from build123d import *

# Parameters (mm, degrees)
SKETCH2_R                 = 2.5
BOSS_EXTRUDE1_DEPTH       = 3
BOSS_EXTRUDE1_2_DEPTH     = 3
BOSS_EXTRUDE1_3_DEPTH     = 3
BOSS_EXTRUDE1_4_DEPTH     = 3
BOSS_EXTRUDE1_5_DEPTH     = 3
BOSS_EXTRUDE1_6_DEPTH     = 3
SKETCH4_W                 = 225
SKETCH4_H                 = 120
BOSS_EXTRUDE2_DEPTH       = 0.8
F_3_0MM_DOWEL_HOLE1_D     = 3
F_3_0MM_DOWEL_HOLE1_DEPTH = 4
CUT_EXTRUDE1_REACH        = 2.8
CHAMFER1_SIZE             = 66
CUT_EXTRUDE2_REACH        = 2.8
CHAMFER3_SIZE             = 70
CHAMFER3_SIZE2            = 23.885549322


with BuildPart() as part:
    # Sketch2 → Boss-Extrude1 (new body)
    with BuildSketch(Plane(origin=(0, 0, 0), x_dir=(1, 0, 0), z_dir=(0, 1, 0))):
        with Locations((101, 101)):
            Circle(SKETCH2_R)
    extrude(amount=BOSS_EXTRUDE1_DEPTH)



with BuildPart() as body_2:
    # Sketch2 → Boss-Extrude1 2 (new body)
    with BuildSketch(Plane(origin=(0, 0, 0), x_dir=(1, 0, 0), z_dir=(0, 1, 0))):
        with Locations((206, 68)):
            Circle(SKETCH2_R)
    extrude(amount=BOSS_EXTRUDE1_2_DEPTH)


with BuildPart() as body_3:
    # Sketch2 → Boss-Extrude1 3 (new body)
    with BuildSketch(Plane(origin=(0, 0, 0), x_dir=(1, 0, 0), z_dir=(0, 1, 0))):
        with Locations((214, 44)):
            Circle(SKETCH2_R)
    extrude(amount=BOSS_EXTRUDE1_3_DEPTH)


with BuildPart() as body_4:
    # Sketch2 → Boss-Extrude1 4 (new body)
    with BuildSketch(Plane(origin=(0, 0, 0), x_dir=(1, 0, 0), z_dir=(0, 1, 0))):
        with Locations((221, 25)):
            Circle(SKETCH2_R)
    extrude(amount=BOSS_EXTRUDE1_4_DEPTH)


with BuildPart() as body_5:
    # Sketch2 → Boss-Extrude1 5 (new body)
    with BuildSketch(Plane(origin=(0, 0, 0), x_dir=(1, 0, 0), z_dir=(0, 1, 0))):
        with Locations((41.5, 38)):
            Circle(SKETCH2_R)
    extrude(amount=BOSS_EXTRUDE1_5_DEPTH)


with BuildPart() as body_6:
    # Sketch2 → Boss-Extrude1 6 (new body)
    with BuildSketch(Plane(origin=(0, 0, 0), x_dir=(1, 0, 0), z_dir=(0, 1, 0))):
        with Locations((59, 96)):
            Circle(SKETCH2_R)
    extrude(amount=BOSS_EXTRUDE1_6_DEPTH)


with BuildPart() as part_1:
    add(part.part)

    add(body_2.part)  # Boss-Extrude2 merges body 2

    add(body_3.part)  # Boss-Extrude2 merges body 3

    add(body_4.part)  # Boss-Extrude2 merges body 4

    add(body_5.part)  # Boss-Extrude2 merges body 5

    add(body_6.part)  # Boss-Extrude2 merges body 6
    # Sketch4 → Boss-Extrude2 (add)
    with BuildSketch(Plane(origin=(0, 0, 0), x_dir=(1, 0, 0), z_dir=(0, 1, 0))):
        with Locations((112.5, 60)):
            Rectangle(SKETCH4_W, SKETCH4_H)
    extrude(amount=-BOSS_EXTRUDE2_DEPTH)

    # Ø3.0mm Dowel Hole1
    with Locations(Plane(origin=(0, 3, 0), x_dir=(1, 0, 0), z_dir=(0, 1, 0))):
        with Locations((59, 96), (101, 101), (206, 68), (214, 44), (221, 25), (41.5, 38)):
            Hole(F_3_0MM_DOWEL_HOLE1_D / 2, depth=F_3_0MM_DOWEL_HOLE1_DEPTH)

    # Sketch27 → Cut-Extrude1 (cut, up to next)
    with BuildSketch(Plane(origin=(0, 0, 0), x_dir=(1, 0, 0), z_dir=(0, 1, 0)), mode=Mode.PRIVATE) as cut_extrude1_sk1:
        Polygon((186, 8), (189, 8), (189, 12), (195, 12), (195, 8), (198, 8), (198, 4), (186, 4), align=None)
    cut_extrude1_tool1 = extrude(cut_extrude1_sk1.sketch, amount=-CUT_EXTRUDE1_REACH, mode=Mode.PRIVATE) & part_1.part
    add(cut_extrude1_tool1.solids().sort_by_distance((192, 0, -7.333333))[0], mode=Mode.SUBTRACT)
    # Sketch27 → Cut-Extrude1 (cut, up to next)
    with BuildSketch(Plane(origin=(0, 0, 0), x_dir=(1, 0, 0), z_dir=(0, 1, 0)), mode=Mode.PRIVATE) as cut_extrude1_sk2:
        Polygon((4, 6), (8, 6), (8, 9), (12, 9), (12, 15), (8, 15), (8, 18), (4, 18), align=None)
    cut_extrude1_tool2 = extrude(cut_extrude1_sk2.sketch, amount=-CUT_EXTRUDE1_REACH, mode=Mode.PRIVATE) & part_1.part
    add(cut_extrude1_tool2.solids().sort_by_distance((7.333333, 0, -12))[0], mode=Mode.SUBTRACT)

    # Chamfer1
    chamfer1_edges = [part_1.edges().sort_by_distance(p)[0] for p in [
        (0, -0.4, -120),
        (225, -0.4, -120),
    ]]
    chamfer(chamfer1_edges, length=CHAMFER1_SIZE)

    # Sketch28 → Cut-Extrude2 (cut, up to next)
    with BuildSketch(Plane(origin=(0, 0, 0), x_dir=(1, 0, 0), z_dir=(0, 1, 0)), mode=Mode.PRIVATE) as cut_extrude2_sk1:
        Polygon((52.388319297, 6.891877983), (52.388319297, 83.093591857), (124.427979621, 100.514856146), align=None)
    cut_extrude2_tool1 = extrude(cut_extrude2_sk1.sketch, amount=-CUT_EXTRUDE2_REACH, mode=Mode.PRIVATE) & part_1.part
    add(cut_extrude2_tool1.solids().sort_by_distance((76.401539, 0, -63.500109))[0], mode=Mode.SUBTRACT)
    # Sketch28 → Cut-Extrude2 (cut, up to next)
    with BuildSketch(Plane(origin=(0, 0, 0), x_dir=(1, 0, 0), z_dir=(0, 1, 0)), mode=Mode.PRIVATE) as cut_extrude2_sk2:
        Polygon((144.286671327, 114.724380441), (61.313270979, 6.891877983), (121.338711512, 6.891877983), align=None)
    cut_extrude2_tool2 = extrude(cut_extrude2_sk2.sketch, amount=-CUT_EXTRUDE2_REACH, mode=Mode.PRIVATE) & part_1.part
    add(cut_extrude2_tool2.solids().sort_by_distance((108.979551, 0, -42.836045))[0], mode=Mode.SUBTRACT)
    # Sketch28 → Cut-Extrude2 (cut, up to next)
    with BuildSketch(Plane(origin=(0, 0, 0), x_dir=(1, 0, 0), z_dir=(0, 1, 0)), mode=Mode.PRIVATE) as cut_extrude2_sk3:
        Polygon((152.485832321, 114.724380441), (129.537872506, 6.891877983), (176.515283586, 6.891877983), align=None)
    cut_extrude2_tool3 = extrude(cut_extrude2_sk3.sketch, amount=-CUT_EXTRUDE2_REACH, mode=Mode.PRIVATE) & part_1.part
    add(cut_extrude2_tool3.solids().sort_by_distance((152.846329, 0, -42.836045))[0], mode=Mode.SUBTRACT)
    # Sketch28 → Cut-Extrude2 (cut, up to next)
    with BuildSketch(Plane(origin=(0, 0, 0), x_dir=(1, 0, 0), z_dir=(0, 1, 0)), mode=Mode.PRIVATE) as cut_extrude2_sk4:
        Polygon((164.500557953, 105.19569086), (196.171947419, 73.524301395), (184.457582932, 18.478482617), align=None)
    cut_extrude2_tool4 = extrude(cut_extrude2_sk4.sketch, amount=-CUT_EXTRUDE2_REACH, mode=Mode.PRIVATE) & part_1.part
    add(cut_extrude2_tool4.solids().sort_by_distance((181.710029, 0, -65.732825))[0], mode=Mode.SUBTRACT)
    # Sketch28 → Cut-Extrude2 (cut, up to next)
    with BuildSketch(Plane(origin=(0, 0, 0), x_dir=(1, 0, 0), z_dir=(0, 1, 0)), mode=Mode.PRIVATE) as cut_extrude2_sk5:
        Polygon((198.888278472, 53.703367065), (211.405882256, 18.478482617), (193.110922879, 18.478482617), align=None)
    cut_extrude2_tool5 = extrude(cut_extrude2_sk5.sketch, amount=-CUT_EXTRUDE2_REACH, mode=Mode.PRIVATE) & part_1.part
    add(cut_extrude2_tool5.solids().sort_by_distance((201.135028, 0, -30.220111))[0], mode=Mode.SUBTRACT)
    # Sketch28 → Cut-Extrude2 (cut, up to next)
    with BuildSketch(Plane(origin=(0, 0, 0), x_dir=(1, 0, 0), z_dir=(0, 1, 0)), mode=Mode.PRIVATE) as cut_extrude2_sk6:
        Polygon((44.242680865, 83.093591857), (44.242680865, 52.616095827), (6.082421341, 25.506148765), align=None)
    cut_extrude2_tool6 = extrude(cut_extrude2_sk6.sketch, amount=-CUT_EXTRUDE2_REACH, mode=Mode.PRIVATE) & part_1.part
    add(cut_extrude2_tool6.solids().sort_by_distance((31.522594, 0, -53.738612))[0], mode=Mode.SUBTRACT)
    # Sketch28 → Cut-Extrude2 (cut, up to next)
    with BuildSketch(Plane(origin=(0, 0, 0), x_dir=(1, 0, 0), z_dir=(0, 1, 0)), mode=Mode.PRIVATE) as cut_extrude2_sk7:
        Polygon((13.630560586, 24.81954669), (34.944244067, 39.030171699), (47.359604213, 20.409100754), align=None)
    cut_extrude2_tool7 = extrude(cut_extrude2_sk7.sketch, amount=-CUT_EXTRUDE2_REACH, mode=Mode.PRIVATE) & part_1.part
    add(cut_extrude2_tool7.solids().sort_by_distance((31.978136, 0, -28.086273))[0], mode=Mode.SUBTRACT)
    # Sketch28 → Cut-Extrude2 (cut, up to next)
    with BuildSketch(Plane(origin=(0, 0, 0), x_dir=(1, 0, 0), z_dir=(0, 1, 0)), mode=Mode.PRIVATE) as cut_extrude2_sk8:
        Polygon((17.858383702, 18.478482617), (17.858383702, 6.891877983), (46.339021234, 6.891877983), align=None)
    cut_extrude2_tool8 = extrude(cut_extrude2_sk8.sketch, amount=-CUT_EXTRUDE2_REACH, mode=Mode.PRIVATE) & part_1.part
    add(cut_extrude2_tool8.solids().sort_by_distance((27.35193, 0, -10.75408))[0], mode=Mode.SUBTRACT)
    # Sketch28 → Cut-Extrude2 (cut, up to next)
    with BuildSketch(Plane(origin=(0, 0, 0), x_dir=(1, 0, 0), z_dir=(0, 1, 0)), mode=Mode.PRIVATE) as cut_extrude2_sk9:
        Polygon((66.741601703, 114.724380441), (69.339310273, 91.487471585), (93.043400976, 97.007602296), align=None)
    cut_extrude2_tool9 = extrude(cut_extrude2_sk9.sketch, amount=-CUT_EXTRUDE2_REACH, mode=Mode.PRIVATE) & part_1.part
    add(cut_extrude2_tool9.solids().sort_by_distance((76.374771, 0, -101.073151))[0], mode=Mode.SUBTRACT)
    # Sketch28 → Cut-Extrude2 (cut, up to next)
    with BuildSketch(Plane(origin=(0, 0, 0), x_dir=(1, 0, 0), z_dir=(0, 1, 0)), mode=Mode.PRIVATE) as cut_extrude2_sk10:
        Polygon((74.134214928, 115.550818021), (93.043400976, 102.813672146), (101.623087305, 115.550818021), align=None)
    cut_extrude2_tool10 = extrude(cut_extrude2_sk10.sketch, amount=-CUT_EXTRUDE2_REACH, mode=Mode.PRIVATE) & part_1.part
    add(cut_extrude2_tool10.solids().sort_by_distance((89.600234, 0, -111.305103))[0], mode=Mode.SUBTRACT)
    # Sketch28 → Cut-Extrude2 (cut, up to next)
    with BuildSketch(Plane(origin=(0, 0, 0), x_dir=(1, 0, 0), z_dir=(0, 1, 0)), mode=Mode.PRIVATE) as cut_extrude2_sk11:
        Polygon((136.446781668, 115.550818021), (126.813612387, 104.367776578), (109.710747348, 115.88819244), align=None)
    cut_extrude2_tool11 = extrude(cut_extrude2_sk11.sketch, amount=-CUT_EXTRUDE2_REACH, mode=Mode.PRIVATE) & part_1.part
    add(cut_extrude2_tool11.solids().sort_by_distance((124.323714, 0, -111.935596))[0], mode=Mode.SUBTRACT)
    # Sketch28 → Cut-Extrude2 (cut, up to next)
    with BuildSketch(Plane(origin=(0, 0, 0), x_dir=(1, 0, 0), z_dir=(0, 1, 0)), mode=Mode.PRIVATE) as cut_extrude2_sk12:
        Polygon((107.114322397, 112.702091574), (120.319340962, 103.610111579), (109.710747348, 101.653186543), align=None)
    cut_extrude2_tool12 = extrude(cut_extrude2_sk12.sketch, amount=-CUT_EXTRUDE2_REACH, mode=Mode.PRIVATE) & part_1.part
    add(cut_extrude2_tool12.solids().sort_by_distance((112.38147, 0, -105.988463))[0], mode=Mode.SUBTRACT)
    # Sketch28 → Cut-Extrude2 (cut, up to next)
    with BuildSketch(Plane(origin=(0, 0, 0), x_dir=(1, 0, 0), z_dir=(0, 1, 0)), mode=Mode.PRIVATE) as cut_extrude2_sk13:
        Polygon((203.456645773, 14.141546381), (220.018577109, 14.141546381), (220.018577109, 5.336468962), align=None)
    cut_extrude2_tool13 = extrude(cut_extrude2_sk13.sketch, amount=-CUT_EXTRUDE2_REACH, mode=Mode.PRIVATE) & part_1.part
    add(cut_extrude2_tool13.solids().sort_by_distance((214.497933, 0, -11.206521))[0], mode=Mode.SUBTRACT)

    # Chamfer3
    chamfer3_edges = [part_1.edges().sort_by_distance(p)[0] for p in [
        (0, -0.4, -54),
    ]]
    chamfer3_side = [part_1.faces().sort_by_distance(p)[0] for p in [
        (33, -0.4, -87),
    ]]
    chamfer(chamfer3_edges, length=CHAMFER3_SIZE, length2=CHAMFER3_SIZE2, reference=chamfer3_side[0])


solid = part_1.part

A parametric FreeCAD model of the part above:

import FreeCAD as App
import Part
import Sketcher
from FreeCAD import Vector
Q = App.Units.Quantity


def edges_at(feature, points):
    """Names of the edges that pass closest to the given points."""
    edges = feature.Shape.Edges
    near = lambda p: min(range(len(edges)), key=lambda i: edges[i].distToShape(Part.Vertex(*p))[0])
    return sorted({f"Edge{near(p) + 1}" for p in points})

doc = App.newDocument("Part")
body = doc.addObject("PartDesign::Body", "Body")

# Sketch on XZ plane
sketch1 = body.newObject("Sketcher::SketchObject", "Sketch")
sketch1.AttachmentSupport = (doc.getObject("XZ_Plane"), [""])
sketch1.MapMode = "FlatFace"
sketch1.addGeometry(Part.Circle(Vector(101, -101, 0), Vector(0, 0, 1), 2.5), False)
sketch1.addConstraint(Sketcher.Constraint("Diameter", 0, 5.0))
sketch1.addConstraint(Sketcher.Constraint("DistanceX", -1, 1, 0, 3, 101.0))
sketch1.addConstraint(Sketcher.Constraint("DistanceY", 0, 3, -1, 1, 101.0))
pad1 = body.newObject("PartDesign::Pad", "Pad")
pad1.Profile = sketch1
pad1.Length = 3
pad1.Reversed = True
body2 = doc.addObject("PartDesign::Body", "Body001")

# Sketch on XZ plane
sketch2 = body2.newObject("Sketcher::SketchObject", "Sketch001")
sketch2.AttachmentSupport = (doc.getObject("XZ_Plane001"), [""])
sketch2.MapMode = "FlatFace"
sketch2.addGeometry(Part.Circle(Vector(206, -68, 0), Vector(0, 0, 1), 2.5), False)
sketch2.addConstraint(Sketcher.Constraint("Diameter", 0, 5.0))
sketch2.addConstraint(Sketcher.Constraint("DistanceX", -1, 1, 0, 3, 206.0))
sketch2.addConstraint(Sketcher.Constraint("DistanceY", 0, 3, -1, 1, 68.0))
pad2 = body2.newObject("PartDesign::Pad", "Pad001")
pad2.Profile = sketch2
pad2.Length = 3
pad2.Reversed = True
body3 = doc.addObject("PartDesign::Body", "Body002")

# Sketch on XZ plane
sketch3 = body3.newObject("Sketcher::SketchObject", "Sketch002")
sketch3.AttachmentSupport = (doc.getObject("XZ_Plane002"), [""])
sketch3.MapMode = "FlatFace"
sketch3.addGeometry(Part.Circle(Vector(214, -44, 0), Vector(0, 0, 1), 2.5), False)
sketch3.addConstraint(Sketcher.Constraint("Diameter", 0, 5.0))
sketch3.addConstraint(Sketcher.Constraint("DistanceX", -1, 1, 0, 3, 214.0))
sketch3.addConstraint(Sketcher.Constraint("DistanceY", 0, 3, -1, 1, 44.0))
pad3 = body3.newObject("PartDesign::Pad", "Pad002")
pad3.Profile = sketch3
pad3.Length = 3
pad3.Reversed = True
body4 = doc.addObject("PartDesign::Body", "Body003")

# Sketch on XZ plane
sketch4 = body4.newObject("Sketcher::SketchObject", "Sketch003")
sketch4.AttachmentSupport = (doc.getObject("XZ_Plane003"), [""])
sketch4.MapMode = "FlatFace"
sketch4.addGeometry(Part.Circle(Vector(221, -25, 0), Vector(0, 0, 1), 2.5), False)
sketch4.addConstraint(Sketcher.Constraint("Diameter", 0, 5.0))
sketch4.addConstraint(Sketcher.Constraint("DistanceX", -1, 1, 0, 3, 221.0))
sketch4.addConstraint(Sketcher.Constraint("DistanceY", 0, 3, -1, 1, 25.0))
pad4 = body4.newObject("PartDesign::Pad", "Pad003")
pad4.Profile = sketch4
pad4.Length = 3
pad4.Reversed = True
body5 = doc.addObject("PartDesign::Body", "Body004")

# Sketch on XZ plane
sketch5 = body5.newObject("Sketcher::SketchObject", "Sketch004")
sketch5.AttachmentSupport = (doc.getObject("XZ_Plane004"), [""])
sketch5.MapMode = "FlatFace"
sketch5.addGeometry(Part.Circle(Vector(41.5, -38, 0), Vector(0, 0, 1), 2.5), False)
sketch5.addConstraint(Sketcher.Constraint("Diameter", 0, 5.0))
sketch5.addConstraint(Sketcher.Constraint("DistanceY", 0, 3, -1, 1, 38.0))
sketch5.addConstraint(Sketcher.Constraint("DistanceX", -1, 1, 0, 3, 41.5))
pad5 = body5.newObject("PartDesign::Pad", "Pad004")
pad5.Profile = sketch5
pad5.Length = 3
pad5.Reversed = True
body6 = doc.addObject("PartDesign::Body", "Body005")

# Sketch on XZ plane
sketch6 = body6.newObject("Sketcher::SketchObject", "Sketch005")
sketch6.AttachmentSupport = (doc.getObject("XZ_Plane005"), [""])
sketch6.MapMode = "FlatFace"
sketch6.addGeometry(Part.Circle(Vector(59, -96, 0), Vector(0, 0, 1), 2.5), False)
sketch6.addConstraint(Sketcher.Constraint("Diameter", 0, 5.0))
sketch6.addConstraint(Sketcher.Constraint("DistanceX", -1, 1, 0, 3, 59.0))
sketch6.addConstraint(Sketcher.Constraint("DistanceY", 0, 3, -1, 1, 96.0))
pad6 = body6.newObject("PartDesign::Pad", "Pad005")
pad6.Profile = sketch6
pad6.Length = 3
pad6.Reversed = True
body.AllowCompound = True
doc.recompute()

boolean = body.newObject("PartDesign::Boolean", "Boolean")
boolean.Type = "Fuse"
boolean.addObjects([body2])
doc.recompute()

boolean2 = body.newObject("PartDesign::Boolean", "Boolean001")
boolean2.Type = "Fuse"
boolean2.addObjects([body3])
doc.recompute()

boolean3 = body.newObject("PartDesign::Boolean", "Boolean002")
boolean3.Type = "Fuse"
boolean3.addObjects([body4])
doc.recompute()

boolean4 = body.newObject("PartDesign::Boolean", "Boolean003")
boolean4.Type = "Fuse"
boolean4.addObjects([body5])
doc.recompute()

boolean5 = body.newObject("PartDesign::Boolean", "Boolean004")
boolean5.Type = "Fuse"
boolean5.addObjects([body6])

# Sketch on XZ plane
sketch7 = body.newObject("Sketcher::SketchObject", "Sketch006")
sketch7.AttachmentSupport = (doc.getObject("XZ_Plane"), [""])
sketch7.MapMode = "FlatFace"
sketch7.addGeometry(Part.LineSegment(Vector(0, -120, 0), Vector(0, 0, 0)), False)
sketch7.addGeometry(Part.LineSegment(Vector(0, 0, 0), Vector(225, 0, 0)), False)
sketch7.addGeometry(Part.LineSegment(Vector(225, 0, 0), Vector(225, -120, 0)), False)
sketch7.addGeometry(Part.LineSegment(Vector(225, -120, 0), Vector(0, -120, 0)), False)
sketch7.addConstraint(Sketcher.Constraint("Coincident", 0, 2, 1, 1))
sketch7.addConstraint(Sketcher.Constraint("Coincident", 1, 2, 2, 1))
sketch7.addConstraint(Sketcher.Constraint("Coincident", 2, 2, 3, 1))
sketch7.addConstraint(Sketcher.Constraint("Coincident", 3, 2, 0, 1))
sketch7.addConstraint(Sketcher.Constraint("Vertical", 0))
sketch7.addConstraint(Sketcher.Constraint("Horizontal", 1))
sketch7.addConstraint(Sketcher.Constraint("Vertical", 2))
sketch7.addConstraint(Sketcher.Constraint("Horizontal", 3))
sketch7.addConstraint(Sketcher.Constraint("Coincident", 0, 2, -1, 1))
sketch7.addConstraint(Sketcher.Constraint("DistanceX", 1, 1, 1, 2, 225.0))
sketch7.addConstraint(Sketcher.Constraint("DistanceY", 0, 1, 0, 2, 120.0))
pad7 = body.newObject("PartDesign::Pad", "Pad006")
pad7.Profile = sketch7
pad7.Length = 0.8

# Sketch on XZ plane
sketch8 = body.newObject("Sketcher::SketchObject", "Sketch007")
sketch8.AttachmentSupport = (doc.getObject("XZ_Plane"), [""])
sketch8.MapMode = "FlatFace"
sketch8.AttachmentOffset = App.Placement(Vector(0, 0, -3), App.Rotation())
sketch8.addGeometry(Part.Circle(Vector(59, -96, 0), Vector(0, 0, 1), 1.5), False)
sketch8.addGeometry(Part.Circle(Vector(101, -101, 0), Vector(0, 0, 1), 1.5), False)
sketch8.addGeometry(Part.Circle(Vector(206, -68, 0), Vector(0, 0, 1), 1.5), False)
sketch8.addGeometry(Part.Circle(Vector(214, -44, 0), Vector(0, 0, 1), 1.5), False)
sketch8.addGeometry(Part.Circle(Vector(221, -25, 0), Vector(0, 0, 1), 1.5), False)
sketch8.addGeometry(Part.Circle(Vector(41.5, -38, 0), Vector(0, 0, 1), 1.5), False)
sketch8.addConstraint(Sketcher.Constraint("Equal", 0, 1))
sketch8.addConstraint(Sketcher.Constraint("Equal", 1, 2))
sketch8.addConstraint(Sketcher.Constraint("Equal", 2, 3))
sketch8.addConstraint(Sketcher.Constraint("Equal", 3, 4))
sketch8.addConstraint(Sketcher.Constraint("Equal", 4, 5))
sketch8.addConstraint(Sketcher.Constraint("Diameter", 0, 3.0))
sketch8.addConstraint(Sketcher.Constraint("DistanceX", -1, 1, 0, 3, 59.0))
sketch8.addConstraint(Sketcher.Constraint("DistanceY", 0, 3, -1, 1, 96.0))
sketch8.addConstraint(Sketcher.Constraint("DistanceX", -1, 1, 1, 3, 101.0))
sketch8.addConstraint(Sketcher.Constraint("DistanceY", 1, 3, -1, 1, 101.0))
sketch8.addConstraint(Sketcher.Constraint("DistanceX", -1, 1, 2, 3, 206.0))
sketch8.addConstraint(Sketcher.Constraint("DistanceY", 2, 3, -1, 1, 68.0))
sketch8.addConstraint(Sketcher.Constraint("DistanceX", -1, 1, 3, 3, 214.0))
sketch8.addConstraint(Sketcher.Constraint("DistanceY", 3, 3, -1, 1, 44.0))
sketch8.addConstraint(Sketcher.Constraint("DistanceX", -1, 1, 4, 3, 221.0))
sketch8.addConstraint(Sketcher.Constraint("DistanceY", 4, 3, -1, 1, 25.0))
sketch8.addConstraint(Sketcher.Constraint("DistanceY", 5, 3, -1, 1, 38.0))
sketch8.addConstraint(Sketcher.Constraint("DistanceX", -1, 1, 5, 3, 41.5))
doc.recompute()
hole = body.newObject("PartDesign::Hole", "Hole")
hole.Profile = sketch8
hole.ThreadType = "None"
hole.Diameter = 3
hole.DepthType = "Dimension"
hole.Depth = 4
hole.DrillPoint = "Flat"
hole.Reversed = True

# Sketch on XZ plane
sketch9 = body.newObject("Sketcher::SketchObject", "Sketch008")
sketch9.AttachmentSupport = (doc.getObject("XZ_Plane"), [""])
sketch9.MapMode = "FlatFace"
sketch9.addGeometry(Part.LineSegment(Vector(189, -8, 0), Vector(186, -8, 0)), False)
sketch9.addGeometry(Part.LineSegment(Vector(186, -8, 0), Vector(186, -4, 0)), False)
sketch9.addGeometry(Part.LineSegment(Vector(186, -4, 0), Vector(198, -4, 0)), False)
sketch9.addGeometry(Part.LineSegment(Vector(198, -4, 0), Vector(198, -8, 0)), False)
sketch9.addGeometry(Part.LineSegment(Vector(198, -8, 0), Vector(195, -8, 0)), False)
sketch9.addGeometry(Part.LineSegment(Vector(195, -8, 0), Vector(195, -12, 0)), False)
sketch9.addGeometry(Part.LineSegment(Vector(195, -12, 0), Vector(189, -12, 0)), False)
sketch9.addGeometry(Part.LineSegment(Vector(189, -12, 0), Vector(189, -8, 0)), False)
sketch9.addConstraint(Sketcher.Constraint("Coincident", 0, 2, 1, 1))
sketch9.addConstraint(Sketcher.Constraint("Coincident", 1, 2, 2, 1))
sketch9.addConstraint(Sketcher.Constraint("Coincident", 2, 2, 3, 1))
sketch9.addConstraint(Sketcher.Constraint("Coincident", 3, 2, 4, 1))
sketch9.addConstraint(Sketcher.Constraint("Coincident", 4, 2, 5, 1))
sketch9.addConstraint(Sketcher.Constraint("Coincident", 5, 2, 6, 1))
sketch9.addConstraint(Sketcher.Constraint("Coincident", 6, 2, 7, 1))
sketch9.addConstraint(Sketcher.Constraint("Coincident", 7, 2, 0, 1))
sketch9.addConstraint(Sketcher.Constraint("Horizontal", 0))
sketch9.addConstraint(Sketcher.Constraint("Vertical", 1))
sketch9.addConstraint(Sketcher.Constraint("Horizontal", 2))
sketch9.addConstraint(Sketcher.Constraint("Vertical", 3))
sketch9.addConstraint(Sketcher.Constraint("Horizontal", 4))
sketch9.addConstraint(Sketcher.Constraint("Vertical", 5))
sketch9.addConstraint(Sketcher.Constraint("Horizontal", 6))
sketch9.addConstraint(Sketcher.Constraint("Vertical", 7))
sketch9.addConstraint(Sketcher.Constraint("Horizontal", 0, 2, 3, 2))
sketch9.addConstraint(Sketcher.Constraint("Equal", 0, 4))
sketch9.addConstraint(Sketcher.Constraint("Equal", 3, 5))
sketch9.addConstraint(Sketcher.Constraint("DistanceX", 0, 2, 0, 1, 3.0))
sketch9.addConstraint(Sketcher.Constraint("DistanceX", 2, 1, 2, 2, 12.0))
sketch9.addConstraint(Sketcher.Constraint("DistanceY", 1, 1, 1, 2, 4.0))
sketch9.addConstraint(Sketcher.Constraint("DistanceX", -1, 1, 0, 2, 186.0))
sketch9.addConstraint(Sketcher.Constraint("DistanceY", 0, 2, -1, 1, 8.0))
pocket1 = body.newObject("PartDesign::Pocket", "Pocket")
pocket1.Profile = sketch9
pocket1.Type = "UpToFirst"
pocket1.Reversed = True

# Sketch on XZ plane
sketch10 = body.newObject("Sketcher::SketchObject", "Sketch009")
sketch10.AttachmentSupport = (doc.getObject("XZ_Plane"), [""])
sketch10.MapMode = "FlatFace"
sketch10.addGeometry(Part.LineSegment(Vector(4, -6, 0), Vector(8, -6, 0)), False)
sketch10.addGeometry(Part.LineSegment(Vector(8, -6, 0), Vector(8, -9, 0)), False)
sketch10.addGeometry(Part.LineSegment(Vector(8, -9, 0), Vector(12, -9, 0)), False)
sketch10.addGeometry(Part.LineSegment(Vector(12, -9, 0), Vector(12, -15, 0)), False)
sketch10.addGeometry(Part.LineSegment(Vector(12, -15, 0), Vector(8, -15, 0)), False)
sketch10.addGeometry(Part.LineSegment(Vector(8, -15, 0), Vector(8, -18, 0)), False)
sketch10.addGeometry(Part.LineSegment(Vector(8, -18, 0), Vector(4, -18, 0)), False)
sketch10.addGeometry(Part.LineSegment(Vector(4, -18, 0), Vector(4, -6, 0)), False)
sketch10.addConstraint(Sketcher.Constraint("Coincident", 0, 2, 1, 1))
sketch10.addConstraint(Sketcher.Constraint("Coincident", 1, 2, 2, 1))
sketch10.addConstraint(Sketcher.Constraint("Coincident", 2, 2, 3, 1))
sketch10.addConstraint(Sketcher.Constraint("Coincident", 3, 2, 4, 1))
sketch10.addConstraint(Sketcher.Constraint("Coincident", 4, 2, 5, 1))
sketch10.addConstraint(Sketcher.Constraint("Coincident", 5, 2, 6, 1))
sketch10.addConstraint(Sketcher.Constraint("Coincident", 6, 2, 7, 1))
sketch10.addConstraint(Sketcher.Constraint("Coincident", 7, 2, 0, 1))
sketch10.addConstraint(Sketcher.Constraint("Horizontal", 0))
sketch10.addConstraint(Sketcher.Constraint("Vertical", 1))
sketch10.addConstraint(Sketcher.Constraint("Horizontal", 2))
sketch10.addConstraint(Sketcher.Constraint("Vertical", 3))
sketch10.addConstraint(Sketcher.Constraint("Horizontal", 4))
sketch10.addConstraint(Sketcher.Constraint("Vertical", 5))
sketch10.addConstraint(Sketcher.Constraint("Horizontal", 6))
sketch10.addConstraint(Sketcher.Constraint("Vertical", 7))
sketch10.addConstraint(Sketcher.Constraint("Vertical", 1, 2, 4, 2))
sketch10.addConstraint(Sketcher.Constraint("Equal", 0, 2))
sketch10.addConstraint(Sketcher.Constraint("Equal", 1, 5))
sketch10.addConstraint(Sketcher.Constraint("DistanceX", 0, 1, 0, 2, 4.0))
sketch10.addConstraint(Sketcher.Constraint("DistanceY", 1, 2, 1, 1, 3.0))
sketch10.addConstraint(Sketcher.Constraint("DistanceY", 3, 2, 3, 1, 6.0))
sketch10.addConstraint(Sketcher.Constraint("DistanceX", -1, 1, 0, 2, 8.0))
sketch10.addConstraint(Sketcher.Constraint("DistanceY", 0, 2, -1, 1, 6.0))
pocket2 = body.newObject("PartDesign::Pocket", "Pocket001")
pocket2.Profile = sketch10
pocket2.Type = "UpToFirst"
pocket2.Reversed = True
doc.recompute()

chamfer = body.newObject("PartDesign::Chamfer", "Chamfer")
chamfer.Base = (pocket2, edges_at(pocket2, [(0, -0.4, -120), (225, -0.4, -120)]))
chamfer.Size = 66

# Sketch on XZ plane
sketch11 = body.newObject("Sketcher::SketchObject", "Sketch010")
sketch11.AttachmentSupport = (doc.getObject("XZ_Plane"), [""])
sketch11.MapMode = "FlatFace"
sketch11.addGeometry(Part.LineSegment(Vector(52, -83, 0), Vector(52, -7, 0)), False)
sketch11.addGeometry(Part.LineSegment(Vector(52, -7, 0), Vector(124, -101, 0)), False)
sketch11.addGeometry(Part.LineSegment(Vector(124, -101, 0), Vector(52, -83, 0)), False)
sketch11.addConstraint(Sketcher.Constraint("Coincident", 0, 2, 1, 1))
sketch11.addConstraint(Sketcher.Constraint("Coincident", 1, 2, 2, 1))
sketch11.addConstraint(Sketcher.Constraint("Coincident", 2, 2, 0, 1))
sketch11.addConstraint(Sketcher.Constraint("Vertical", 0))
sketch11.addConstraint(Sketcher.Constraint("DistanceY", 0, 1, 0, 2, 76.201714))
sketch11.addConstraint(Sketcher.Constraint("DistanceX", -1, 1, 0, 2, 52.388319))
sketch11.addConstraint(Sketcher.Constraint("DistanceX", -1, 1, 1, 2, 124.42798))
sketch11.addConstraint(Sketcher.Constraint("DistanceY", 2, 2, -1, 1, 83.093592))
sketch11.addConstraint(Sketcher.Constraint("DistanceY", 1, 2, 0, 2, 93.622978))
pocket3 = body.newObject("PartDesign::Pocket", "Pocket002")
pocket3.Profile = sketch11
pocket3.Type = "UpToFirst"
pocket3.Reversed = True

# Sketch on XZ plane
sketch12 = body.newObject("Sketcher::SketchObject", "Sketch011")
sketch12.AttachmentSupport = (doc.getObject("XZ_Plane"), [""])
sketch12.MapMode = "FlatFace"
sketch12.addGeometry(Part.LineSegment(Vector(144, -115, 0), Vector(61, -7, 0)), False)
sketch12.addGeometry(Part.LineSegment(Vector(61, -7, 0), Vector(121, -7, 0)), False)
sketch12.addGeometry(Part.LineSegment(Vector(121, -7, 0), Vector(144, -115, 0)), False)
sketch12.addConstraint(Sketcher.Constraint("Coincident", 0, 2, 1, 1))
sketch12.addConstraint(Sketcher.Constraint("Coincident", 1, 2, 2, 1))
sketch12.addConstraint(Sketcher.Constraint("Coincident", 2, 2, 0, 1))
sketch12.addConstraint(Sketcher.Constraint("Horizontal", 1))
sketch12.addConstraint(Sketcher.Constraint("DistanceX", 1, 1, 1, 2, 60.025441))
sketch12.addConstraint(Sketcher.Constraint("DistanceX", 0, 2, 2, 2, 82.9734))
sketch12.addConstraint(Sketcher.Constraint("DistanceX", -1, 1, 0, 2, 61.313271))
sketch12.addConstraint(Sketcher.Constraint("DistanceY", 2, 2, -1, 1, 114.72438))
sketch12.addConstraint(Sketcher.Constraint("Distance", 0, 136.060405))
pocket4 = body.newObject("PartDesign::Pocket", "Pocket003")
pocket4.Profile = sketch12
pocket4.Type = "UpToFirst"
pocket4.Reversed = True

# Sketch on XZ plane
sketch13 = body.newObject("Sketcher::SketchObject", "Sketch012")
sketch13.AttachmentSupport = (doc.getObject("XZ_Plane"), [""])
sketch13.MapMode = "FlatFace"
sketch13.addGeometry(Part.LineSegment(Vector(152, -115, 0), Vector(130, -7, 0)), False)
sketch13.addGeometry(Part.LineSegment(Vector(130, -7, 0), Vector(177, -7, 0)), False)
sketch13.addGeometry(Part.LineSegment(Vector(177, -7, 0), Vector(152, -115, 0)), False)
sketch13.addConstraint(Sketcher.Constraint("Coincident", 0, 2, 1, 1))
sketch13.addConstraint(Sketcher.Constraint("Coincident", 1, 2, 2, 1))
sketch13.addConstraint(Sketcher.Constraint("Coincident", 2, 2, 0, 1))
sketch13.addConstraint(Sketcher.Constraint("Horizontal", 1))
sketch13.addConstraint(Sketcher.Constraint("DistanceX", 1, 1, 1, 2, 46.977411))
sketch13.addConstraint(Sketcher.Constraint("DistanceY", 2, 2, -1, 1, 114.72438))
sketch13.addConstraint(Sketcher.Constraint("DistanceX", 0, 2, 2, 2, 22.94796))
sketch13.addConstraint(Sketcher.Constraint("Distance", 0, 110.247256))
sketch13.addConstraint(Sketcher.Constraint("DistanceX", -1, 1, 0, 2, 129.537873))
pocket5 = body.newObject("PartDesign::Pocket", "Pocket004")
pocket5.Profile = sketch13
pocket5.Type = "UpToFirst"
pocket5.Reversed = True

# Sketch on XZ plane
sketch14 = body.newObject("Sketcher::SketchObject", "Sketch013")
sketch14.AttachmentSupport = (doc.getObject("XZ_Plane"), [""])
sketch14.MapMode = "FlatFace"
sketch14.addGeometry(Part.LineSegment(Vector(196, -74, 0), Vector(165, -105, 0)), False)
sketch14.addGeometry(Part.LineSegment(Vector(165, -105, 0), Vector(184, -18, 0)), False)
sketch14.addGeometry(Part.LineSegment(Vector(184, -18, 0), Vector(196, -74, 0)), False)
sketch14.addConstraint(Sketcher.Constraint("Coincident", 0, 2, 1, 1))
sketch14.addConstraint(Sketcher.Constraint("Coincident", 1, 2, 2, 1))
sketch14.addConstraint(Sketcher.Constraint("Coincident", 2, 2, 0, 1))
sketch14.addConstraint(Sketcher.Constraint("Angle", 0, Q("-135 deg")))
sketch14.addConstraint(Sketcher.Constraint("DistanceY", 2, 2, -1, 1, 73.524301))
sketch14.addConstraint(Sketcher.Constraint("Distance", 0, 44.790109))
sketch14.addConstraint(Sketcher.Constraint("Distance", 2, 56.278491))
sketch14.addConstraint(Sketcher.Constraint("DistanceY", 0, 2, 1, 2, 86.717208))
sketch14.addConstraint(Sketcher.Constraint("DistanceX", -1, 1, 0, 2, 164.500558))
pocket6 = body.newObject("PartDesign::Pocket", "Pocket005")
pocket6.Profile = sketch14
pocket6.Type = "UpToFirst"
pocket6.Reversed = True

# Sketch on XZ plane
sketch15 = body.newObject("Sketcher::SketchObject", "Sketch014")
sketch15.AttachmentSupport = (doc.getObject("XZ_Plane"), [""])
sketch15.MapMode = "FlatFace"
sketch15.addGeometry(Part.LineSegment(Vector(211, -18, 0), Vector(199, -54, 0)), False)
sketch15.addGeometry(Part.LineSegment(Vector(199, -54, 0), Vector(193, -18, 0)), False)
sketch15.addGeometry(Part.LineSegment(Vector(193, -18, 0), Vector(211, -18, 0)), False)
sketch15.addConstraint(Sketcher.Constraint("Coincident", 0, 2, 1, 1))
sketch15.addConstraint(Sketcher.Constraint("Coincident", 1, 2, 2, 1))
sketch15.addConstraint(Sketcher.Constraint("Coincident", 2, 2, 0, 1))
sketch15.addConstraint(Sketcher.Constraint("Horizontal", 2))
sketch15.addConstraint(Sketcher.Constraint("DistanceX", 2, 1, 2, 2, 18.294959))
sketch15.addConstraint(Sketcher.Constraint("DistanceX", -1, 1, 0, 2, 198.888278))
sketch15.addConstraint(Sketcher.Constraint("Distance", 0, 37.382922))
sketch15.addConstraint(Sketcher.Constraint("Distance", 1, 35.695522))
sketch15.addConstraint(Sketcher.Constraint("DistanceY", 0, 2, -1, 1, 53.703367))
pocket7 = body.newObject("PartDesign::Pocket", "Pocket006")
pocket7.Profile = sketch15
pocket7.Type = "UpToFirst"
pocket7.Reversed = True

# Sketch on XZ plane
sketch16 = body.newObject("Sketcher::SketchObject", "Sketch015")
sketch16.AttachmentSupport = (doc.getObject("XZ_Plane"), [""])
sketch16.MapMode = "FlatFace"
sketch16.addGeometry(Part.LineSegment(Vector(44, -53, 0), Vector(44, -83, 0)), False)
sketch16.addGeometry(Part.LineSegment(Vector(44, -83, 0), Vector(6, -26, 0)), False)
sketch16.addGeometry(Part.LineSegment(Vector(6, -26, 0), Vector(44, -53, 0)), False)
sketch16.addConstraint(Sketcher.Constraint("Coincident", 0, 2, 1, 1))
sketch16.addConstraint(Sketcher.Constraint("Coincident", 1, 2, 2, 1))
sketch16.addConstraint(Sketcher.Constraint("Coincident", 2, 2, 0, 1))
sketch16.addConstraint(Sketcher.Constraint("Vertical", 0))
sketch16.addConstraint(Sketcher.Constraint("Distance", 1, 69.083421))
sketch16.addConstraint(Sketcher.Constraint("Distance", 2, 46.809771))
sketch16.addConstraint(Sketcher.Constraint("DistanceY", 0, 2, 0, 1, 30.477496))
sketch16.addConstraint(Sketcher.Constraint("DistanceX", -1, 1, 0, 2, 44.242681))
sketch16.addConstraint(Sketcher.Constraint("DistanceY", 0, 2, -1, 1, 83.093592))
pocket8 = body.newObject("PartDesign::Pocket", "Pocket007")
pocket8.Profile = sketch16
pocket8.Type = "UpToFirst"
pocket8.Reversed = True

# Sketch on XZ plane
sketch17 = body.newObject("Sketcher::SketchObject", "Sketch016")
sketch17.AttachmentSupport = (doc.getObject("XZ_Plane"), [""])
sketch17.MapMode = "FlatFace"
sketch17.addGeometry(Part.LineSegment(Vector(35, -39, 0), Vector(14, -25, 0)), False)
sketch17.addGeometry(Part.LineSegment(Vector(14, -25, 0), Vector(47, -20, 0)), False)
sketch17.addGeometry(Part.LineSegment(Vector(47, -20, 0), Vector(35, -39, 0)), False)
sketch17.addConstraint(Sketcher.Constraint("Coincident", 0, 2, 1, 1))
sketch17.addConstraint(Sketcher.Constraint("Coincident", 1, 2, 2, 1))
sketch17.addConstraint(Sketcher.Constraint("Coincident", 2, 2, 0, 1))
sketch17.addConstraint(Sketcher.Constraint("Perpendicular", 0, 2))
sketch17.addConstraint(Sketcher.Constraint("DistanceY", 1, 2, -1, 1, 20.409101))
sketch17.addConstraint(Sketcher.Constraint("Distance", 1, 34.016179))
sketch17.addConstraint(Sketcher.Constraint("Distance", 2, 22.38047))
sketch17.addConstraint(Sketcher.Constraint("DistanceX", -1, 1, 0, 2, 13.630561))
sketch17.addConstraint(Sketcher.Constraint("DistanceY", 2, 2, -1, 1, 39.030172))
pocket9 = body.newObject("PartDesign::Pocket", "Pocket008")
pocket9.Profile = sketch17
pocket9.Type = "UpToFirst"
pocket9.Reversed = True

# Sketch on XZ plane
sketch18 = body.newObject("Sketcher::SketchObject", "Sketch017")
sketch18.AttachmentSupport = (doc.getObject("XZ_Plane"), [""])
sketch18.MapMode = "FlatFace"
sketch18.addGeometry(Part.LineSegment(Vector(18, -18, 0), Vector(18, -7, 0)), False)
sketch18.addGeometry(Part.LineSegment(Vector(18, -7, 0), Vector(46, -7, 0)), False)
sketch18.addGeometry(Part.LineSegment(Vector(46, -7, 0), Vector(18, -18, 0)), False)
sketch18.addConstraint(Sketcher.Constraint("Coincident", 0, 2, 1, 1))
sketch18.addConstraint(Sketcher.Constraint("Coincident", 1, 2, 2, 1))
sketch18.addConstraint(Sketcher.Constraint("Coincident", 2, 2, 0, 1))
sketch18.addConstraint(Sketcher.Constraint("Vertical", 0))
sketch18.addConstraint(Sketcher.Constraint("Horizontal", 1))
sketch18.addConstraint(Sketcher.Constraint("DistanceX", 1, 1, 1, 2, 28.480638))
sketch18.addConstraint(Sketcher.Constraint("DistanceY", 0, 1, 0, 2, 11.586605))
sketch18.addConstraint(Sketcher.Constraint("DistanceX", -1, 1, 1, 2, 46.339021))
sketch18.addConstraint(Sketcher.Constraint("DistanceY", 0, 2, -1, 1, 6.891878))
pocket10 = body.newObject("PartDesign::Pocket", "Pocket009")
pocket10.Profile = sketch18
pocket10.Type = "UpToFirst"
pocket10.Reversed = True

# Sketch on XZ plane
sketch19 = body.newObject("Sketcher::SketchObject", "Sketch018")
sketch19.AttachmentSupport = (doc.getObject("XZ_Plane"), [""])
sketch19.MapMode = "FlatFace"
sketch19.addGeometry(Part.LineSegment(Vector(67, -115, 0), Vector(69, -91, 0)), False)
sketch19.addGeometry(Part.LineSegment(Vector(69, -91, 0), Vector(93, -97, 0)), False)
sketch19.addGeometry(Part.LineSegment(Vector(93, -97, 0), Vector(67, -115, 0)), False)
sketch19.addConstraint(Sketcher.Constraint("Coincident", 0, 2, 1, 1))
sketch19.addConstraint(Sketcher.Constraint("Coincident", 1, 2, 2, 1))
sketch19.addConstraint(Sketcher.Constraint("Coincident", 2, 2, 0, 1))
sketch19.addConstraint(Sketcher.Constraint("DistanceX", -1, 1, 1, 2, 93.043401))
sketch19.addConstraint(Sketcher.Constraint("DistanceX", -1, 1, 2, 2, 66.741602))
sketch19.addConstraint(Sketcher.Constraint("Distance", 0, 23.38166))
sketch19.addConstraint(Sketcher.Constraint("Distance", 1, 24.33836))
sketch19.addConstraint(Sketcher.Constraint("DistanceX", -1, 1, 0, 2, 69.33931))
sketch19.addConstraint(Sketcher.Constraint("DistanceY", 0, 2, -1, 1, 91.487472))
pocket11 = body.newObject("PartDesign::Pocket", "Pocket010")
pocket11.Profile = sketch19
pocket11.Type = "UpToFirst"
pocket11.Reversed = True

# Sketch on XZ plane
sketch20 = body.newObject("Sketcher::SketchObject", "Sketch019")
sketch20.AttachmentSupport = (doc.getObject("XZ_Plane"), [""])
sketch20.MapMode = "FlatFace"
sketch20.addGeometry(Part.LineSegment(Vector(74, -116, 0), Vector(93, -103, 0)), False)
sketch20.addGeometry(Part.LineSegment(Vector(93, -103, 0), Vector(102, -116, 0)), False)
sketch20.addGeometry(Part.LineSegment(Vector(102, -116, 0), Vector(74, -116, 0)), False)
sketch20.addConstraint(Sketcher.Constraint("Coincident", 0, 2, 1, 1))
sketch20.addConstraint(Sketcher.Constraint("Coincident", 1, 2, 2, 1))
sketch20.addConstraint(Sketcher.Constraint("Coincident", 2, 2, 0, 1))
sketch20.addConstraint(Sketcher.Constraint("Horizontal", 2))
sketch20.addConstraint(Sketcher.Constraint("Perpendicular", 0, 1))
sketch20.addConstraint(Sketcher.Constraint("DistanceX", -1, 1, 0, 2, 93.043401))
sketch20.addConstraint(Sketcher.Constraint("Distance", 0, 22.798952))
sketch20.addConstraint(Sketcher.Constraint("DistanceX", 2, 2, 2, 1, 27.488872))
sketch20.addConstraint(Sketcher.Constraint("DistanceY", 1, 2, -1, 1, 115.550818))
pocket12 = body.newObject("PartDesign::Pocket", "Pocket011")
pocket12.Profile = sketch20
pocket12.Type = "UpToFirst"
pocket12.Reversed = True

# Sketch on XZ plane
sketch21 = body.newObject("Sketcher::SketchObject", "Sketch020")
sketch21.AttachmentSupport = (doc.getObject("XZ_Plane"), [""])
sketch21.MapMode = "FlatFace"
sketch21.addGeometry(Part.LineSegment(Vector(127, -104, 0), Vector(136, -116, 0)), False)
sketch21.addGeometry(Part.LineSegment(Vector(136, -116, 0), Vector(110, -116, 0)), False)
sketch21.addGeometry(Part.LineSegment(Vector(110, -116, 0), Vector(127, -104, 0)), False)
sketch21.addConstraint(Sketcher.Constraint("Coincident", 0, 2, 1, 1))
sketch21.addConstraint(Sketcher.Constraint("Coincident", 1, 2, 2, 1))
sketch21.addConstraint(Sketcher.Constraint("Coincident", 2, 2, 0, 1))
sketch21.addConstraint(Sketcher.Constraint("DistanceX", -1, 1, 0, 2, 136.446782))
sketch21.addConstraint(Sketcher.Constraint("DistanceY", 0, 2, -1, 1, 115.550818))
sketch21.addConstraint(Sketcher.Constraint("DistanceX", 2, 2, 0, 2, 9.633169))
sketch21.addConstraint(Sketcher.Constraint("DistanceY", 0, 2, 2, 2, 11.183041))
sketch21.addConstraint(Sketcher.Constraint("Distance", 1, 26.738163))
sketch21.addConstraint(Sketcher.Constraint("Distance", 2, 20.621057))
pocket13 = body.newObject("PartDesign::Pocket", "Pocket012")
pocket13.Profile = sketch21
pocket13.Type = "UpToFirst"
pocket13.Reversed = True

# Sketch on XZ plane
sketch22 = body.newObject("Sketcher::SketchObject", "Sketch021")
sketch22.AttachmentSupport = (doc.getObject("XZ_Plane"), [""])
sketch22.MapMode = "FlatFace"
sketch22.addGeometry(Part.LineSegment(Vector(120, -104, 0), Vector(107, -113, 0)), False)
sketch22.addGeometry(Part.LineSegment(Vector(107, -113, 0), Vector(110, -102, 0)), False)
sketch22.addGeometry(Part.LineSegment(Vector(110, -102, 0), Vector(120, -104, 0)), False)
sketch22.addConstraint(Sketcher.Constraint("Coincident", 0, 2, 1, 1))
sketch22.addConstraint(Sketcher.Constraint("Coincident", 1, 2, 2, 1))
sketch22.addConstraint(Sketcher.Constraint("Coincident", 2, 2, 0, 1))
sketch22.addConstraint(Sketcher.Constraint("Distance", 0, 16.032362))
sketch22.addConstraint(Sketcher.Constraint("DistanceY", 0, 2, -1, 1, 112.702092))
sketch22.addConstraint(Sketcher.Constraint("DistanceX", -1, 1, 2, 2, 120.319341))
sketch22.addConstraint(Sketcher.Constraint("DistanceY", 2, 2, -1, 1, 103.610112))
sketch22.addConstraint(Sketcher.Constraint("Distance", 1, 11.349878))
sketch22.addConstraint(Sketcher.Constraint("Distance", 2, 10.787577))
pocket14 = body.newObject("PartDesign::Pocket", "Pocket013")
pocket14.Profile = sketch22
pocket14.Type = "UpToFirst"
pocket14.Reversed = True

# Sketch on XZ plane
sketch23 = body.newObject("Sketcher::SketchObject", "Sketch022")
sketch23.AttachmentSupport = (doc.getObject("XZ_Plane"), [""])
sketch23.MapMode = "FlatFace"
sketch23.addGeometry(Part.LineSegment(Vector(220, -14, 0), Vector(203, -14, 0)), False)
sketch23.addGeometry(Part.LineSegment(Vector(203, -14, 0), Vector(220, -5, 0)), False)
sketch23.addGeometry(Part.LineSegment(Vector(220, -5, 0), Vector(220, -14, 0)), False)
sketch23.addConstraint(Sketcher.Constraint("Coincident", 0, 2, 1, 1))
sketch23.addConstraint(Sketcher.Constraint("Coincident", 1, 2, 2, 1))
sketch23.addConstraint(Sketcher.Constraint("Coincident", 2, 2, 0, 1))
sketch23.addConstraint(Sketcher.Constraint("Horizontal", 0))
sketch23.addConstraint(Sketcher.Constraint("Vertical", 2))
sketch23.addConstraint(Sketcher.Constraint("DistanceX", 0, 2, 0, 1, 16.561931))
sketch23.addConstraint(Sketcher.Constraint("Distance", 1, 18.757051))
sketch23.addConstraint(Sketcher.Constraint("DistanceY", 1, 2, -1, 1, 5.336469))
sketch23.addConstraint(Sketcher.Constraint("DistanceX", -1, 1, 0, 2, 203.456646))
pocket15 = body.newObject("PartDesign::Pocket", "Pocket014")
pocket15.Profile = sketch23
pocket15.Type = "UpToFirst"
pocket15.Reversed = True
doc.recompute()

chamfer2 = body.newObject("PartDesign::Chamfer", "Chamfer001")
chamfer2.Base = (pocket15, edges_at(pocket15, [(0, -0.4, -54)]))
chamfer2.ChamferType = "Two distances"
chamfer2.Size = 70
chamfer2.Size2 = 23.885549
chamfer2.FlipDirection = True

doc.recompute()
